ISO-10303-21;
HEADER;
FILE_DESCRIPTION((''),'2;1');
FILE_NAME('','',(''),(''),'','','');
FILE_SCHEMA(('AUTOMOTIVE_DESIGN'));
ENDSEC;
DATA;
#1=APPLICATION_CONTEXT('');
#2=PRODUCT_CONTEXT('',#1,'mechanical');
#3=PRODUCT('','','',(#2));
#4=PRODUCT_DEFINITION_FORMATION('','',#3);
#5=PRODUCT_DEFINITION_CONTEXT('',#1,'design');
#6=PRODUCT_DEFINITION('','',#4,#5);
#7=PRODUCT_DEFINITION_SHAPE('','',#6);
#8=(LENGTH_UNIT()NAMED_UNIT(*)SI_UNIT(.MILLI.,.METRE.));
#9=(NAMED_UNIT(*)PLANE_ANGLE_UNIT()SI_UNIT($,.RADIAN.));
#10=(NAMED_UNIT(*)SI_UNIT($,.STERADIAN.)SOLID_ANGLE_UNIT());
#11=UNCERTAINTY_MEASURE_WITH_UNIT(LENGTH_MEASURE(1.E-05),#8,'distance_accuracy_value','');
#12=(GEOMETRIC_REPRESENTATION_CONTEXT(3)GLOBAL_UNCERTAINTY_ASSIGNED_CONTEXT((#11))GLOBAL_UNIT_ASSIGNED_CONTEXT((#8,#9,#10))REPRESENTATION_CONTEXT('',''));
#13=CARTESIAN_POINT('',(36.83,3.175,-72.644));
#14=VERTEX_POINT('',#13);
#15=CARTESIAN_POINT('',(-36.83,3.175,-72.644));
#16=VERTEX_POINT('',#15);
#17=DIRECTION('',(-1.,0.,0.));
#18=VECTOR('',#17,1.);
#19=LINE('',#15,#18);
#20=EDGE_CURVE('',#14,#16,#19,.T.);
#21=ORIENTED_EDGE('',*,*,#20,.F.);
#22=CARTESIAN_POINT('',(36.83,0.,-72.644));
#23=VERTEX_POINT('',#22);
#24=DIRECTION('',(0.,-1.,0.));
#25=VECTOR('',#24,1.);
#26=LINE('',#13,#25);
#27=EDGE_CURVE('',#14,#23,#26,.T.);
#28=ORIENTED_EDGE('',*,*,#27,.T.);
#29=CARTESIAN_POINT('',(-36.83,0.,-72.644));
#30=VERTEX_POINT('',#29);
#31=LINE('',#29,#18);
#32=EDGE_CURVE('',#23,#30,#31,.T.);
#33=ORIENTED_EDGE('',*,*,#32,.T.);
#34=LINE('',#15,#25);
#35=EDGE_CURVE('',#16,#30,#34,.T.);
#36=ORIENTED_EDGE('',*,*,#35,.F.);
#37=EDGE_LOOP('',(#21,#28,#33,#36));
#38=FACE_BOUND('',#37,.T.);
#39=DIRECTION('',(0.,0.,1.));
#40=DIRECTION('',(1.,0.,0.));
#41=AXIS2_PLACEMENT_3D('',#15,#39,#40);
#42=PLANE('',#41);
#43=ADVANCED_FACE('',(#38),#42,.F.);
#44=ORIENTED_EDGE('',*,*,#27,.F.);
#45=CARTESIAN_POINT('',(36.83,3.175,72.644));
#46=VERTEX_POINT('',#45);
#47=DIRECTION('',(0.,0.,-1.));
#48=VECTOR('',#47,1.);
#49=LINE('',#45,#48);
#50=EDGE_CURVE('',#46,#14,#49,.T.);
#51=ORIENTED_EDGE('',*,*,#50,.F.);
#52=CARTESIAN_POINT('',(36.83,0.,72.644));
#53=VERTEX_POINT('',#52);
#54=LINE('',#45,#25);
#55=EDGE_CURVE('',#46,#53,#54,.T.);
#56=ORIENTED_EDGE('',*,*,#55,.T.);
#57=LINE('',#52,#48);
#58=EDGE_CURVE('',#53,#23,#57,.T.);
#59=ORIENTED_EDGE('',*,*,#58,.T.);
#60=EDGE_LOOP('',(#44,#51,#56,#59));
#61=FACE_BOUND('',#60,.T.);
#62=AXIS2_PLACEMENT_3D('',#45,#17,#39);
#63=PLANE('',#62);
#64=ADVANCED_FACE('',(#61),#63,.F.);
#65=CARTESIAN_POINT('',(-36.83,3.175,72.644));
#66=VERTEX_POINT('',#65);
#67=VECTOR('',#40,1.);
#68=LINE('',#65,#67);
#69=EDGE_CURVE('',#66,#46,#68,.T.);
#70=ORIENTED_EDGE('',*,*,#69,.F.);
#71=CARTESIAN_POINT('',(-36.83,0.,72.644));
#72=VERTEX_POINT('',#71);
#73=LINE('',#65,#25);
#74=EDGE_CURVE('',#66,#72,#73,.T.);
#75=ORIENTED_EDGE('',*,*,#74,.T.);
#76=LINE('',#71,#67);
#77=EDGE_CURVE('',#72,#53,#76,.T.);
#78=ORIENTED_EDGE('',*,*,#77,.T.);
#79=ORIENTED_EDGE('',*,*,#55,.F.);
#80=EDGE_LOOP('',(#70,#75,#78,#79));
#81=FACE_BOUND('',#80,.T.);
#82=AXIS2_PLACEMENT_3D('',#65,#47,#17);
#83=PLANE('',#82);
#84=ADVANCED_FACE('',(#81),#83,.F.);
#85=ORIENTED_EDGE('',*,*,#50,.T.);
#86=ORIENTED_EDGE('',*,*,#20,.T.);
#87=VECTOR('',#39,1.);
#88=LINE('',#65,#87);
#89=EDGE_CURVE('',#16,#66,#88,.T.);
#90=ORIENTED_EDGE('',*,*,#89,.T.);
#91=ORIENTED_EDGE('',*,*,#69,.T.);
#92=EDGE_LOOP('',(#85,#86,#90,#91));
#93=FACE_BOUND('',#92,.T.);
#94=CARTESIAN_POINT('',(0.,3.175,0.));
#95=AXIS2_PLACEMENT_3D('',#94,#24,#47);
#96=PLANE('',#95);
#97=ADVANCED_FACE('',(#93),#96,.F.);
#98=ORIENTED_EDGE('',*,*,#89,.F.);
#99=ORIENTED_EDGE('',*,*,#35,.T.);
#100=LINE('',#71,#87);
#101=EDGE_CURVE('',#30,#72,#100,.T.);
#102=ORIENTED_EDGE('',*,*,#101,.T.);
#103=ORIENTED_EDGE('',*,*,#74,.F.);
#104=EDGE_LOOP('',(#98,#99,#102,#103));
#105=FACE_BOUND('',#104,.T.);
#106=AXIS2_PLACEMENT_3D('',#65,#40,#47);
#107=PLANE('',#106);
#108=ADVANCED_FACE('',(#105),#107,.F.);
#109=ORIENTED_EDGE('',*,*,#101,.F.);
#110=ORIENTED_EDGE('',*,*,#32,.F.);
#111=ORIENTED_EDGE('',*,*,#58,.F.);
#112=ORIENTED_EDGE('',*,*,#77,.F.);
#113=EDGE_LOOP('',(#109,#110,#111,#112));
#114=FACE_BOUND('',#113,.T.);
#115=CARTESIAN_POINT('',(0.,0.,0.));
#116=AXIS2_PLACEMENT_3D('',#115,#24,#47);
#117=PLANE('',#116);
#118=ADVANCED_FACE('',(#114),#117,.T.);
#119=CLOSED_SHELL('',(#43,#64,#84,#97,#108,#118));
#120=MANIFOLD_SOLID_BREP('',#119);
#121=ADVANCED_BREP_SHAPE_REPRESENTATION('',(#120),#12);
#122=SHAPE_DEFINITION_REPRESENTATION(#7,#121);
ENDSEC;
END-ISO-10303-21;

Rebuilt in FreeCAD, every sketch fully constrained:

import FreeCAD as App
import Part
import Sketcher
from FreeCAD import Vector
Q = App.Units.Quantity

doc = App.newDocument("Part")
body = doc.addObject("PartDesign::Body", "Body")

# Sketch on XZ plane
sketch1 = body.newObject("Sketcher::SketchObject", "Sketch")
sketch1.AttachmentSupport = (doc.getObject("XZ_Plane"), [""])
sketch1.MapMode = "FlatFace"
sketch1.addGeometry([
    Part.LineSegment(Vector(-37, -73, 0), Vector(-37, 73, 0)),
    Part.LineSegment(Vector(-37, 73, 0), Vector(37, 73, 0)),
    Part.LineSegment(Vector(37, 73, 0), Vector(37, -73, 0)),
    Part.LineSegment(Vector(37, -73, 0), Vector(-37, -73, 0)),
], False)
sketch1.addConstraint([
    Sketcher.Constraint("Coincident", 0, 2, 1, 1),
    Sketcher.Constraint("Coincident", 1, 2, 2, 1),
    Sketcher.Constraint("Coincident", 2, 2, 3, 1),
    Sketcher.Constraint("Coincident", 3, 2, 0, 1),
    Sketcher.Constraint("Vertical", 0),
    Sketcher.Constraint("Horizontal", 1),
    Sketcher.Constraint("Vertical", 2),
    Sketcher.Constraint("Horizontal", 3),
    Sketcher.Constraint("Symmetric", 0, 2, 2, 2, -1, 1),
    Sketcher.Constraint("DistanceX", 1, 1, 1, 2, Q("2.9 in")),
    Sketcher.Constraint("DistanceY", 0, 1, 0, 2, Q("5.72 in")),
])
pad1 = body.newObject("PartDesign::Pad", "Pad")
pad1.Profile = sketch1
pad1.Length = Q("0.125 in")
pad1.Reversed = True

doc.recompute()
